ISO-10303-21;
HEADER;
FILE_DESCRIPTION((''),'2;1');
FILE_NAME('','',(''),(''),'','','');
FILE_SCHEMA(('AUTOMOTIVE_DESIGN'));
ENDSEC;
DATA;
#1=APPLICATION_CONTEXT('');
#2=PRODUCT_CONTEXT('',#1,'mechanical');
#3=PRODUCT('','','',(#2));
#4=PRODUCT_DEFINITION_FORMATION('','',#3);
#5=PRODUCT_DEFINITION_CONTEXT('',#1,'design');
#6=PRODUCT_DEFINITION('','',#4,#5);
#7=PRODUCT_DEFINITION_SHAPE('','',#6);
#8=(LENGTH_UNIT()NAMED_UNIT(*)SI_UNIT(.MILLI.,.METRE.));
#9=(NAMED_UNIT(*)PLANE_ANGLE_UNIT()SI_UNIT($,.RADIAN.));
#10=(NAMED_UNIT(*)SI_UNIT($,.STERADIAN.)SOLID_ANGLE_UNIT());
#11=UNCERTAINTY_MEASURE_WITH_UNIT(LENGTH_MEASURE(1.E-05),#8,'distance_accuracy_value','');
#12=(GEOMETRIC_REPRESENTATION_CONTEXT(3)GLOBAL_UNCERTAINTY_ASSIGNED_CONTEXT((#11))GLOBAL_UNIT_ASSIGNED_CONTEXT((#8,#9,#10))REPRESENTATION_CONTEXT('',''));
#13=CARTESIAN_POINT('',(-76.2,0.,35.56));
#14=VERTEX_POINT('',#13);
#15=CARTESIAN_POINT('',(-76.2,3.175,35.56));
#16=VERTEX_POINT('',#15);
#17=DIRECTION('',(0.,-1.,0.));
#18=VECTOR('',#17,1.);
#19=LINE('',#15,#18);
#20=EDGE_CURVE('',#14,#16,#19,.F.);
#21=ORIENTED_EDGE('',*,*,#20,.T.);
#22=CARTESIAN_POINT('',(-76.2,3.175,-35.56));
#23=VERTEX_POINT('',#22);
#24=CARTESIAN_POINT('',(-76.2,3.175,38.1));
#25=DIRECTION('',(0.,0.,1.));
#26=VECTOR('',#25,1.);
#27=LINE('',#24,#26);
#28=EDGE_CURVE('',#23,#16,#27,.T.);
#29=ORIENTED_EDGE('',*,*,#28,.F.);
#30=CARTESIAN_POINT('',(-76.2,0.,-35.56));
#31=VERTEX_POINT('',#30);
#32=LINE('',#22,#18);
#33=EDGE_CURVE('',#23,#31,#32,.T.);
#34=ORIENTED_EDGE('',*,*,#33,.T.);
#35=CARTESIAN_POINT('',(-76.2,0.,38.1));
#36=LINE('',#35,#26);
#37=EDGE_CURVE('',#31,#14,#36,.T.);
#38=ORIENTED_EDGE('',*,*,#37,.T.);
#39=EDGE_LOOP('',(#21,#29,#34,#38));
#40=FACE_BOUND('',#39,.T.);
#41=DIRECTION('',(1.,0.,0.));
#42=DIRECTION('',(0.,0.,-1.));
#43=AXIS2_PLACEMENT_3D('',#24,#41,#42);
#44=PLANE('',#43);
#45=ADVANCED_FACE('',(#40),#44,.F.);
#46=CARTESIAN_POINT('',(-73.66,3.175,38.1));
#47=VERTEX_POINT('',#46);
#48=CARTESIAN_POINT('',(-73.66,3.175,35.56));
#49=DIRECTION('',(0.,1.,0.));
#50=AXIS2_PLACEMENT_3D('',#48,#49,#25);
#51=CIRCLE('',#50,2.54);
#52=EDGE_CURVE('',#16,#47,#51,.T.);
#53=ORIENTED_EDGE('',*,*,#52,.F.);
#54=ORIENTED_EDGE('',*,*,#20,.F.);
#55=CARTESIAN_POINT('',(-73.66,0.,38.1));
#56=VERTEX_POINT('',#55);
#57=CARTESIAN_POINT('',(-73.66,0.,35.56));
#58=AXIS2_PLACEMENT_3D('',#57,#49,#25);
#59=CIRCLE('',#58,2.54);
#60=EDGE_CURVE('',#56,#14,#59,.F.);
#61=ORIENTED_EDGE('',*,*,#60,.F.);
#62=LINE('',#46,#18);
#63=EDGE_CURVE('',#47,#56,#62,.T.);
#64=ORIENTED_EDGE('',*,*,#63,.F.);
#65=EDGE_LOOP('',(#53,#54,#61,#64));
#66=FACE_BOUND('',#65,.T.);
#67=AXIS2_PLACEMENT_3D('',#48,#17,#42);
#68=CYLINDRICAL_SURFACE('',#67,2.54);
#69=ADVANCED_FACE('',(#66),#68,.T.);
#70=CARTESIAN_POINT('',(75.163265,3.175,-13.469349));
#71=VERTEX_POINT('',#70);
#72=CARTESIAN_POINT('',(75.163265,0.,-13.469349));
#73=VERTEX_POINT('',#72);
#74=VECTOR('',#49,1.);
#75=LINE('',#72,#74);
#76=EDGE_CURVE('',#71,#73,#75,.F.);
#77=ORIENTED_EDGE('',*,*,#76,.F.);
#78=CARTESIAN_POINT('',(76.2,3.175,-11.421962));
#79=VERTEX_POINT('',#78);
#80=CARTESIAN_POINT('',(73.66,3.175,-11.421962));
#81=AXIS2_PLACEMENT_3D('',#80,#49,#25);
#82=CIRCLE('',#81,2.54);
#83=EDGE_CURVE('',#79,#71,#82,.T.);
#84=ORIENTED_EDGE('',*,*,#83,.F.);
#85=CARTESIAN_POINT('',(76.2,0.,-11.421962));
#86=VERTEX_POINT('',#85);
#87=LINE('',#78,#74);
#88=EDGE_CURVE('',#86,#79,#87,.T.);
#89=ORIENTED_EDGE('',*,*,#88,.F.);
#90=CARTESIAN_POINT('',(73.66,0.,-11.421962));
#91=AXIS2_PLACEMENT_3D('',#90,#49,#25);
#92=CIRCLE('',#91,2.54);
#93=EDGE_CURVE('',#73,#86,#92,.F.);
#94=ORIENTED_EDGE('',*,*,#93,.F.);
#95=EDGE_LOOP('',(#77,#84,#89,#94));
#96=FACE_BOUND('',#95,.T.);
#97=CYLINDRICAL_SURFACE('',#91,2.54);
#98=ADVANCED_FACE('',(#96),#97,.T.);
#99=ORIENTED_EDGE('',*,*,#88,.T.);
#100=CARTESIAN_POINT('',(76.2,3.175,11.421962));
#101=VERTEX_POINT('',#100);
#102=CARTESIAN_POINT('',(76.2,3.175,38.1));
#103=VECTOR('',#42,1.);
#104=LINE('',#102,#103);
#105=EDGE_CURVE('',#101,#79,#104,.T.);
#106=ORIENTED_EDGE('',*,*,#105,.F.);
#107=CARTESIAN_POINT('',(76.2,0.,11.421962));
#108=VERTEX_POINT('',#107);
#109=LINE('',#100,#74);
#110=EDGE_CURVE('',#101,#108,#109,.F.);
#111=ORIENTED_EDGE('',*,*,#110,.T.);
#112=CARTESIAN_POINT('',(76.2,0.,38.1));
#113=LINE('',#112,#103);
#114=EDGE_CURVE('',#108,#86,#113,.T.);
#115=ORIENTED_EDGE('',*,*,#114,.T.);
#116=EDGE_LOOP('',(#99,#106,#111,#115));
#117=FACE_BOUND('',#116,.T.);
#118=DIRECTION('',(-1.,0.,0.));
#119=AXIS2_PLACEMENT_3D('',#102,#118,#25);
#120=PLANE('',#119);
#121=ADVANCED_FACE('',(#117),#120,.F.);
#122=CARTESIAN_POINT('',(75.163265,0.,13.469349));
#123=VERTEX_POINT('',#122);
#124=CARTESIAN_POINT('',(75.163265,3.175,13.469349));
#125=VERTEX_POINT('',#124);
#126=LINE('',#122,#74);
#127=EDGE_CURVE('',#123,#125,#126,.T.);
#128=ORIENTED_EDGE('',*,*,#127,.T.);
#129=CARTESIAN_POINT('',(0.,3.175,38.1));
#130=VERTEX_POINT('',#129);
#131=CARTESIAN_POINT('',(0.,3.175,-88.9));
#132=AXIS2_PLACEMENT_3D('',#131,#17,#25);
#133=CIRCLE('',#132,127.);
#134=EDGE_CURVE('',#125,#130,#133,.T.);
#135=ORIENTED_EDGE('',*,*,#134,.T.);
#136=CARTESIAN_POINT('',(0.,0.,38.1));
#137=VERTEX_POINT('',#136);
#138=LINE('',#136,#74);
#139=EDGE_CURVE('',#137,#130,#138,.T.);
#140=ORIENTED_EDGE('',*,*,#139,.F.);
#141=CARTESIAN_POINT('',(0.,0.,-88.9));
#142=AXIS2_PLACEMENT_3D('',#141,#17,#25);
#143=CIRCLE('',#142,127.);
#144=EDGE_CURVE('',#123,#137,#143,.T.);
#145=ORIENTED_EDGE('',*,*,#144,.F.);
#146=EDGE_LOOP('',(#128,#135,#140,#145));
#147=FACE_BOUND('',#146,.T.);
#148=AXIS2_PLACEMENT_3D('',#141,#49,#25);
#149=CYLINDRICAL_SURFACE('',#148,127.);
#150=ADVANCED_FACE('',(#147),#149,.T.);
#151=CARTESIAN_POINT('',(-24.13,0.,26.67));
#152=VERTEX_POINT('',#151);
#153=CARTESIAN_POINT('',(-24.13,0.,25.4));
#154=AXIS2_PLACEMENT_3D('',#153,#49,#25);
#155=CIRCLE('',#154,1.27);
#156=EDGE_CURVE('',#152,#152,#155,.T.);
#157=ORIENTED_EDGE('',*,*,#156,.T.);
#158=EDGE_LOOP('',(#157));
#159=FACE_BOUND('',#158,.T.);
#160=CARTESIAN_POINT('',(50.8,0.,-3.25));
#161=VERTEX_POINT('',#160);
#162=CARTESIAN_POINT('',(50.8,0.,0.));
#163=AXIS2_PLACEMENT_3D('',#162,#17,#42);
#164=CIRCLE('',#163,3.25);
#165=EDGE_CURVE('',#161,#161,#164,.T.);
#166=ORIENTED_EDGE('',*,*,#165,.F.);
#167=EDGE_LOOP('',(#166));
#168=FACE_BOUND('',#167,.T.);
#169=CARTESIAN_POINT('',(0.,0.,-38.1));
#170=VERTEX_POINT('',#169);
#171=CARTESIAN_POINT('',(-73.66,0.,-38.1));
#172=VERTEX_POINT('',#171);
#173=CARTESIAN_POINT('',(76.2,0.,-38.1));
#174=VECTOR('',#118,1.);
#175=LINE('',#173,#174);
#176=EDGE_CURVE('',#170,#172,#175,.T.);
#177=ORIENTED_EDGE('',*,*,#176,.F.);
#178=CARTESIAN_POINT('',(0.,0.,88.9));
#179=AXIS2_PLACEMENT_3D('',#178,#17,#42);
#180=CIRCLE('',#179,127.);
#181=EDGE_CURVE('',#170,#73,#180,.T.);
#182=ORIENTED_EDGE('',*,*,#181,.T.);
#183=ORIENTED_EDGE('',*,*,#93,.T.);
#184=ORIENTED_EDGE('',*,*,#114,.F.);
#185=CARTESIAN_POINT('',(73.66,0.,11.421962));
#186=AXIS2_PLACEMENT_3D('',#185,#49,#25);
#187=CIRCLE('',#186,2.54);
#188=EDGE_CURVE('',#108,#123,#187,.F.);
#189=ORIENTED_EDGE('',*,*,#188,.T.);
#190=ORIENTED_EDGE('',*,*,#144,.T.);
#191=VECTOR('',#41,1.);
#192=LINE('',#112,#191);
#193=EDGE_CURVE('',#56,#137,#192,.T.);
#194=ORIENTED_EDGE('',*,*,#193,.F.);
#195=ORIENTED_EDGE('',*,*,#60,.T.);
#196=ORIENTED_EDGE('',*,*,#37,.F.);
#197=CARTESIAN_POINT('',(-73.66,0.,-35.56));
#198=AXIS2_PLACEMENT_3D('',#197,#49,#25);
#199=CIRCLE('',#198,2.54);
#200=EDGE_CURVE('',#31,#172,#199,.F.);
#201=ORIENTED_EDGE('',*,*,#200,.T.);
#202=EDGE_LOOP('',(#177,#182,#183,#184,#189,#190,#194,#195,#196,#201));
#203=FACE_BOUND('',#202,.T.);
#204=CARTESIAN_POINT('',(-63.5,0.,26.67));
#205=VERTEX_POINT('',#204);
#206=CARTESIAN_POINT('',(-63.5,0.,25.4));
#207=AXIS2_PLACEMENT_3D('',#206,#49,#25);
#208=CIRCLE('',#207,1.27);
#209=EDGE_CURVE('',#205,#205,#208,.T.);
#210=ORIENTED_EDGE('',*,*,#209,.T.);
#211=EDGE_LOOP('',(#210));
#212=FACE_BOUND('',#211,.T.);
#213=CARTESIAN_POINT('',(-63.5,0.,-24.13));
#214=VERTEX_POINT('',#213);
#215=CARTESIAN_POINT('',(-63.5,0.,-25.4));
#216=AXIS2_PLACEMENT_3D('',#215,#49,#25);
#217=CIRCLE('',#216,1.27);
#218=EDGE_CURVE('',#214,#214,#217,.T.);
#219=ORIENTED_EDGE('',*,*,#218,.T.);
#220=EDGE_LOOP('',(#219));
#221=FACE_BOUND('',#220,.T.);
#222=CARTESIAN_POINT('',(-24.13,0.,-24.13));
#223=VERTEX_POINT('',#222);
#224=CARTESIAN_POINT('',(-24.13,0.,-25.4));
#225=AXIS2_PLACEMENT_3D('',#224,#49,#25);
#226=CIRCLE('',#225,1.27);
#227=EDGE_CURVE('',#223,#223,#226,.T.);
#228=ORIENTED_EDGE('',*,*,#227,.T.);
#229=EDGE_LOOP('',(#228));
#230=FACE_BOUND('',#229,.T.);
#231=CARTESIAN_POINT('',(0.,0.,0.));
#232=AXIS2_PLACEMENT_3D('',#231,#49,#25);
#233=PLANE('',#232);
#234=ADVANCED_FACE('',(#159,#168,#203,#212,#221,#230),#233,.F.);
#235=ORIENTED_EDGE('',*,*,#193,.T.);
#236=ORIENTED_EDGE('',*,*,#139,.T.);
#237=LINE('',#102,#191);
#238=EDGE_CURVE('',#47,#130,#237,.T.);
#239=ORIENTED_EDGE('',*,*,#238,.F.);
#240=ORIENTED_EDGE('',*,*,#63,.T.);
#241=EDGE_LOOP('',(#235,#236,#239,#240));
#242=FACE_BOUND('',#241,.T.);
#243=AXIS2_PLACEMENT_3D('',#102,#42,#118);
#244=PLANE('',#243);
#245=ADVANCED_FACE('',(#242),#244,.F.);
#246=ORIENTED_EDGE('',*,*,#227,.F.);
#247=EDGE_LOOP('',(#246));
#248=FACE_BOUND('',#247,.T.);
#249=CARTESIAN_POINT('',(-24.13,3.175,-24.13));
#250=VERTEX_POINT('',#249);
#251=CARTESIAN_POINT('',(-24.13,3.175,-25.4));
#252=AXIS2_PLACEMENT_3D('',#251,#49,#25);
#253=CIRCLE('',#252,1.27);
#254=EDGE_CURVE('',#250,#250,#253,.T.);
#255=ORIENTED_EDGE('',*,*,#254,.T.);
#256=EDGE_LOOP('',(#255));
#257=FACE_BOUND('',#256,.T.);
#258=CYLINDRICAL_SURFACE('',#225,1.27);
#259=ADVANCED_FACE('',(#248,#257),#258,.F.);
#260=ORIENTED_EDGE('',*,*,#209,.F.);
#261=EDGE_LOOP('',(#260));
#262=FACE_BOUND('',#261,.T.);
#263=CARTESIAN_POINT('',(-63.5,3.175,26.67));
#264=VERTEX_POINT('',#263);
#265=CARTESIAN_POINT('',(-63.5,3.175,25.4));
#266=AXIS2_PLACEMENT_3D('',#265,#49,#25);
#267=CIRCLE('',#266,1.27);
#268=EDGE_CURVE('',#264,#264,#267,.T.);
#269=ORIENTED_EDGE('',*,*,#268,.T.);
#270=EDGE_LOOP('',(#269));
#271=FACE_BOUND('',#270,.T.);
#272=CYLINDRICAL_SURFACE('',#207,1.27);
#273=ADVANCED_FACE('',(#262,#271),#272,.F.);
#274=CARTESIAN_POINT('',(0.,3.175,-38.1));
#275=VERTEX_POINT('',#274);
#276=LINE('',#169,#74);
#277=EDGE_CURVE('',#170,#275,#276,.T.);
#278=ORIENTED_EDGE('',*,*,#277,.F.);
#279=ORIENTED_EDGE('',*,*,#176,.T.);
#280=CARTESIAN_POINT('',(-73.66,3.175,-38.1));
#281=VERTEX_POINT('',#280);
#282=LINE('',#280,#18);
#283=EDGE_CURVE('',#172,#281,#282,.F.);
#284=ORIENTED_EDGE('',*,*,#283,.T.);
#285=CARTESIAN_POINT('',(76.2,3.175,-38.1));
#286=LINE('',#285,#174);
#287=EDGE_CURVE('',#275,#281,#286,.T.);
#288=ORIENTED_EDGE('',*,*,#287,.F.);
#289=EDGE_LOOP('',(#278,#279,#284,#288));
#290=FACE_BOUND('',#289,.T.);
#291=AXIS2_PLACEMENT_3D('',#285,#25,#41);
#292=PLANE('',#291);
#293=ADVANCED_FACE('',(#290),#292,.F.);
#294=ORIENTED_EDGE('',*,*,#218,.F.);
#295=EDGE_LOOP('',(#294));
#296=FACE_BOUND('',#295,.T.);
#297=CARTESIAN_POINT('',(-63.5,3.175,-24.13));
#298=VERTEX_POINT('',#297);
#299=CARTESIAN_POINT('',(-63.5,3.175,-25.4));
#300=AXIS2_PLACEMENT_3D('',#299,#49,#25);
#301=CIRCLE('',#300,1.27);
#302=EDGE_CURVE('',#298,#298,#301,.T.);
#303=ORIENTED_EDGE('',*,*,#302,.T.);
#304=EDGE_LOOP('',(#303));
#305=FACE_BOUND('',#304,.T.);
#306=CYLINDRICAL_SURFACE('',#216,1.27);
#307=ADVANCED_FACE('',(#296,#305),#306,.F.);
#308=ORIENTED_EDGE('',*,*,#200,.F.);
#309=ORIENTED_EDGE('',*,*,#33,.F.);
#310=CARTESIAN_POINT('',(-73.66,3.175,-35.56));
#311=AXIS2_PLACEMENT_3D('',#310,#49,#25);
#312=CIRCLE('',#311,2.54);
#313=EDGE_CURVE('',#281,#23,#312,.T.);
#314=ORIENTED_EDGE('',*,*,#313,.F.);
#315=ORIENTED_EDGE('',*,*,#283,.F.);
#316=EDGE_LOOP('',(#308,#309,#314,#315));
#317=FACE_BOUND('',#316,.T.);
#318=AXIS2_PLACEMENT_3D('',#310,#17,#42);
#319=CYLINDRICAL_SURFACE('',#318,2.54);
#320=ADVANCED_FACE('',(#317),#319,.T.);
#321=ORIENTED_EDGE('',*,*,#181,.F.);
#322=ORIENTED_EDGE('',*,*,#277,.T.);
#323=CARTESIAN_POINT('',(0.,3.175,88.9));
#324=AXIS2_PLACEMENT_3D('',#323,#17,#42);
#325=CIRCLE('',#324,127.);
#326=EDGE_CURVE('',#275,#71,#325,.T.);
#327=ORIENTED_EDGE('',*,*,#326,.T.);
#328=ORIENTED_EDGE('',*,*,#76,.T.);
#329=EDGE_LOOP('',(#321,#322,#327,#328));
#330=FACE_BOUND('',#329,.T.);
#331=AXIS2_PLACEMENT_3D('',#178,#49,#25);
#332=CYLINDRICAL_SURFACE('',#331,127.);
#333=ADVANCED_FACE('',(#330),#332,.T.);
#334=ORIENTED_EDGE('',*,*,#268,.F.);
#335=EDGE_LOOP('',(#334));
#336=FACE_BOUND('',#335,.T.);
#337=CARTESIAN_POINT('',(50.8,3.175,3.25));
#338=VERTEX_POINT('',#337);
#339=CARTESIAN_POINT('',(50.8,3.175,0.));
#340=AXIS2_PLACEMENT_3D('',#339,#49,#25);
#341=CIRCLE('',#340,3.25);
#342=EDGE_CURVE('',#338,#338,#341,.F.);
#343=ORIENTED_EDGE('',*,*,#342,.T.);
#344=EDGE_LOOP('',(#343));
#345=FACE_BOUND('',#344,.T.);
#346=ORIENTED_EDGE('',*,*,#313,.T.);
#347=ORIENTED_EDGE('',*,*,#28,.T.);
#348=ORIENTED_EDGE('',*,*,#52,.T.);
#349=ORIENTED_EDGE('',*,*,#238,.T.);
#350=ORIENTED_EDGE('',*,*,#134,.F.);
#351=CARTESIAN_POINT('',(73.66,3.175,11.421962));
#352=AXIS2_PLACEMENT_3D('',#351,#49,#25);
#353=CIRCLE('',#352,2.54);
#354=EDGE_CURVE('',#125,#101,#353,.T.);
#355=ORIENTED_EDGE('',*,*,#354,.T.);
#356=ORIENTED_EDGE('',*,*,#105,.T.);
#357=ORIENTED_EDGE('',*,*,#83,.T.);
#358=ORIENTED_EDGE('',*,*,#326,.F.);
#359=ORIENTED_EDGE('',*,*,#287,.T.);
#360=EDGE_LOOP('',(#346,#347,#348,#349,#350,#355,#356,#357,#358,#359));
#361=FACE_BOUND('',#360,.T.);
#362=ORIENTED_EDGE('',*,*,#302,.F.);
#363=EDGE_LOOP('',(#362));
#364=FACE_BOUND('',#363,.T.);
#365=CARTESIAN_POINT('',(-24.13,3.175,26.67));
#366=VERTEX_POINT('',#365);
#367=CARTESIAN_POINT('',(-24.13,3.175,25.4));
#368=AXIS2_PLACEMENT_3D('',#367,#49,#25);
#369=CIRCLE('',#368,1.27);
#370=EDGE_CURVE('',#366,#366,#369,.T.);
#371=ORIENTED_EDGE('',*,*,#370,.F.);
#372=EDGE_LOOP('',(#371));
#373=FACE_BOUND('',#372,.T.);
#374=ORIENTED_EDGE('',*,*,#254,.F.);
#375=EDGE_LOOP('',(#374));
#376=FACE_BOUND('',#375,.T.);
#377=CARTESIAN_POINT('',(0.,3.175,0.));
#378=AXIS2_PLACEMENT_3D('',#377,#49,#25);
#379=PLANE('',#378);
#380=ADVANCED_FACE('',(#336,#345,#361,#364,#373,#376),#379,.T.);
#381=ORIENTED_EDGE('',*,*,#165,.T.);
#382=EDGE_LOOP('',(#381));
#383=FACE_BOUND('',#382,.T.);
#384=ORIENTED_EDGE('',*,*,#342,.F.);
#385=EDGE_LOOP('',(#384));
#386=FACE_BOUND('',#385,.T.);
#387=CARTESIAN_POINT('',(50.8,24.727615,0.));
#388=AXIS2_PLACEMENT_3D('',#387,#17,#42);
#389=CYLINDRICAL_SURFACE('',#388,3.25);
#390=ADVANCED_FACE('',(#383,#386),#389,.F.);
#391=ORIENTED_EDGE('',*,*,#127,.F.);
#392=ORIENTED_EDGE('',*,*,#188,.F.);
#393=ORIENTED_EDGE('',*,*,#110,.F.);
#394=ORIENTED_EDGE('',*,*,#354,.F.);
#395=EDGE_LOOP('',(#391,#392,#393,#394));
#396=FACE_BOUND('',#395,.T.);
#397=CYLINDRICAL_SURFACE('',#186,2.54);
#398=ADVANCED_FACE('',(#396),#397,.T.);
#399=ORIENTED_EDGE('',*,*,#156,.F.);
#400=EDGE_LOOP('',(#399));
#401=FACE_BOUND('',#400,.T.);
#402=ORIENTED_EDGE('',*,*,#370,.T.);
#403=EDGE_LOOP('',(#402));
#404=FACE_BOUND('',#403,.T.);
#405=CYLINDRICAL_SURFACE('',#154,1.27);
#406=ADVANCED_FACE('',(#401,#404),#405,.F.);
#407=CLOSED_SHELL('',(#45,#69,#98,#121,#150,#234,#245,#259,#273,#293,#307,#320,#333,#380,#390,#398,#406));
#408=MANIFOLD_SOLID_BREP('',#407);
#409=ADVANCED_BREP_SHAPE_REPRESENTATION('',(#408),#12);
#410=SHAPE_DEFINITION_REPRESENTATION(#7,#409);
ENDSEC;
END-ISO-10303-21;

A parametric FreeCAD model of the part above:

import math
import FreeCAD as App
import Part
import Sketcher
from FreeCAD import Vector
Q = App.Units.Quantity


def edges_at(feature, points):
    """Names of the edges that pass closest to the given points."""
    edges = feature.Shape.Edges
    near = lambda p: min(range(len(edges)), key=lambda i: edges[i].distToShape(Part.Vertex(*p))[0])
    return sorted({f"Edge{near(p) + 1}" for p in points})

doc = App.newDocument("Part")
body = doc.addObject("PartDesign::Body", "Body")

# Sketch on XZ plane
sketch1 = body.newObject("Sketcher::SketchObject", "Sketch")
sketch1.AttachmentSupport = (doc.getObject("XZ_Plane"), [""])
sketch1.MapMode = "FlatFace"
sketch1.addGeometry(Part.LineSegment(Vector(-76, -38, 0), Vector(-76, 38, 0)), False)
sketch1.addGeometry(Part.LineSegment(Vector(-76, 38, 0), Vector(76, 38, 0)), False)
sketch1.addGeometry(Part.LineSegment(Vector(76, 38, 0), Vector(76, -38, 0)), False)
sketch1.addGeometry(Part.LineSegment(Vector(76, -38, 0), Vector(-76, -38, 0)), False)
sketch1.addConstraint(Sketcher.Constraint("Coincident", 0, 2, 1, 1))
sketch1.addConstraint(Sketcher.Constraint("Coincident", 1, 2, 2, 1))
sketch1.addConstraint(Sketcher.Constraint("Coincident", 2, 2, 3, 1))
sketch1.addConstraint(Sketcher.Constraint("Coincident", 3, 2, 0, 1))
sketch1.addConstraint(Sketcher.Constraint("Vertical", 0))
sketch1.addConstraint(Sketcher.Constraint("Horizontal", 1))
sketch1.addConstraint(Sketcher.Constraint("Vertical", 2))
sketch1.addConstraint(Sketcher.Constraint("Horizontal", 3))
sketch1.addConstraint(Sketcher.Constraint("Symmetric", 0, 2, 2, 2, -1, 1))
sketch1.addConstraint(Sketcher.Constraint("DistanceX", 1, 1, 1, 2, Q("6 in")))
sketch1.addConstraint(Sketcher.Constraint("DistanceY", 0, 1, 0, 2, Q("3 in")))
pad1 = body.newObject("PartDesign::Pad", "Pad")
pad1.Profile = sketch1
pad1.Length = Q("0.125 in")
pad1.Reversed = True

# Sketch on XZ plane
sketch2 = body.newObject("Sketcher::SketchObject", "Sketch001")
sketch2.AttachmentSupport = (doc.getObject("XZ_Plane"), [""])
sketch2.MapMode = "FlatFace"
sketch2.AttachmentOffset = App.Placement(Vector(0, 0, -0.125 * 25.4), App.Rotation())
sketch2.addGeometry(Part.LineSegment(Vector(76, -38, 0), Vector(0, -38, 0)), False)
sketch2.addGeometry(Part.ArcOfCircle(Part.Circle(Vector(0, 89, 0), Vector(0, 0, 1), 127), math.radians(-90), math.radians(-53)), False)
sketch2.addGeometry(Part.LineSegment(Vector(76, -13, 0), Vector(76, -38, 0)), False)
sketch2.addGeometry(Part.LineSegment(Vector(76, 38, 0), Vector(76, 13, 0)), False)
sketch2.addGeometry(Part.ArcOfCircle(Part.Circle(Vector(0, -89, 0), Vector(0, 0, 1), 127), math.radians(53), math.radians(90)), False)
sketch2.addGeometry(Part.LineSegment(Vector(0, 38, 0), Vector(76, 38, 0)), False)
sketch2.addConstraint(Sketcher.Constraint("Tangent", 0, 2, 1, 1))
sketch2.addConstraint(Sketcher.Constraint("Coincident", 1, 2, 2, 1))
sketch2.addConstraint(Sketcher.Constraint("Coincident", 2, 2, 0, 1))
sketch2.addConstraint(Sketcher.Constraint("Coincident", 3, 2, 4, 1))
sketch2.addConstraint(Sketcher.Constraint("Tangent", 4, 2, 5, 1))
sketch2.addConstraint(Sketcher.Constraint("Coincident", 5, 2, 3, 1))
sketch2.addConstraint(Sketcher.Constraint("Horizontal", 0))
sketch2.addConstraint(Sketcher.Constraint("Vertical", 2))
sketch2.addConstraint(Sketcher.Constraint("Vertical", 3))
sketch2.addConstraint(Sketcher.Constraint("Horizontal", 5))
sketch2.addConstraint(Sketcher.Constraint("Equal", 1, 4))
sketch2.addConstraint(Sketcher.Constraint("Symmetric", 1, 3, 4, 3, -1, 1))
sketch2.addConstraint(Sketcher.Constraint("Symmetric", 1, 2, 3, 2, -1))
sketch2.addConstraint(Sketcher.Constraint("Radius", 1, Q("5 in")))
sketch2.addConstraint(Sketcher.Constraint("DistanceX", 0, 2, 0, 1, Q("3 in")))
sketch2.addConstraint(Sketcher.Constraint("DistanceY", 4, 3, 1, 3, Q("7 in")))
pocket1 = body.newObject("PartDesign::Pocket", "Pocket")
pocket1.Profile = sketch2
pocket1.Length = Q("0.125 in")
pocket1.Reversed = True
doc.recompute()

fillet = body.newObject("PartDesign::Fillet", "Fillet")
fillet.Base = (pocket1, edges_at(pocket1, [(76.2, 1.587, -12.7), (76.2, 1.587, 12.7)]))
fillet.Radius = Q("0.1 in")
doc.recompute()

fillet2 = body.newObject("PartDesign::Fillet", "Fillet001")
fillet2.Base = (fillet, edges_at(fillet, [(-76.2, 1.587, -38.1), (-76.2, 1.587, 38.1)]))
fillet2.Radius = Q("0.1 in")

# Sketch on XZ plane
sketch3 = body.newObject("Sketcher::SketchObject", "Sketch002")
sketch3.AttachmentSupport = (doc.getObject("XZ_Plane"), [""])
sketch3.MapMode = "FlatFace"
sketch3.AttachmentOffset = App.Placement(Vector(0, 0, -0.125 * 25.4), App.Rotation())
sketch3.addGeometry(Part.Circle(Vector(51, 0, 0), Vector(0, 0, 1), 8), False)
sketch3.addConstraint(Sketcher.Constraint("PointOnObject", 0, 3, -1))
sketch3.addConstraint(Sketcher.Constraint("Diameter", 0, Q("0.6 in")))
sketch3.addConstraint(Sketcher.Constraint("DistanceX", -1, 1, 0, 3, Q("2 in")))
pocket2 = body.newObject("PartDesign::Pocket", "Pocket001")
pocket2.Profile = sketch3
pocket2.Length = Q("0.125 in")
pocket2.Reversed = True

# Sketch on XZ plane
sketch4 = body.newObject("Sketcher::SketchObject", "Sketch003")
sketch4.AttachmentSupport = (doc.getObject("XZ_Plane"), [""])
sketch4.MapMode = "FlatFace"
sketch4.AttachmentOffset = App.Placement(Vector(0, 0, -0.125 * 25.4), App.Rotation())
sketch4.addGeometry(Part.Circle(Vector(-63.5, -25.4, 0), Vector(0, 0, 1), 1.3), False)
sketch4.addGeometry(Part.Circle(Vector(-63.5, 25.4, 0), Vector(0, 0, 1), 1.3), False)
sketch4.addGeometry(Part.Circle(Vector(-24.1, -25.4, 0), Vector(0, 0, 1), 1.3), False)
sketch4.addGeometry(Part.Circle(Vector(-24.1, 25.4, 0), Vector(0, 0, 1), 1.3), False)
sketch4.addConstraint(Sketcher.Constraint("Equal", 0, 1))
sketch4.addConstraint(Sketcher.Constraint("Equal", 1, 2))
sketch4.addConstraint(Sketcher.Constraint("Equal", 2, 3))
sketch4.addConstraint(Sketcher.Constraint("Symmetric", 0, 3, 1, 3, -1))
sketch4.addConstraint(Sketcher.Constraint("Symmetric", 2, 3, 3, 3, -1))
sketch4.addConstraint(Sketcher.Constraint("Horizontal", 0, 3, 2, 3))
sketch4.addConstraint(Sketcher.Constraint("Diameter", 0, Q("0.1 in")))
sketch4.addConstraint(Sketcher.Constraint("DistanceY", 0, 3, -1, 1, Q("1 in")))
sketch4.addConstraint(Sketcher.Constraint("DistanceX", 0, 3, -1, 1, Q("2.5 in")))
sketch4.addConstraint(Sketcher.Constraint("DistanceX", 2, 3, -1, 1, Q("0.95 in")))
pocket3 = body.newObject("PartDesign::Pocket", "Pocket002")
pocket3.Profile = sketch4
pocket3.Length = Q("0.125 in")
pocket3.Reversed = True

# Sketch on XZ plane
sketch5 = body.newObject("Sketcher::SketchObject", "Sketch004")
sketch5.AttachmentSupport = (doc.getObject("XZ_Plane"), [""])
sketch5.MapMode = "FlatFace"
sketch5.AttachmentOffset = App.Placement(Vector(0, 0, -0.125 * 25.4), App.Rotation())
sketch5.addGeometry(Part.Circle(Vector(50.8, 0, 0), Vector(0, 0, 1), 7.6), False)
sketch5.addGeometry(Part.Circle(Vector(50.8, 0, 0), Vector(0, 0, 1), 3.2), False)
sketch5.addConstraint(Sketcher.Constraint("Coincident", 1, 3, 0, 3))
sketch5.addConstraint(Sketcher.Constraint("PointOnObject", 0, 3, -1))
sketch5.addConstraint(Sketcher.Constraint("Diameter", 0, Q("0.6 in")))
sketch5.addConstraint(Sketcher.Constraint("DistanceX", -1, 1, 0, 3, Q("2 in")))
sketch5.addConstraint(Sketcher.Constraint("Diameter", 1, Q("6.5 mm")))
pad2 = body.newObject("PartDesign::Pad", "Pad001")
pad2.Profile = sketch5
pad2.Length = Q("0.125 in")

doc.recompute()
